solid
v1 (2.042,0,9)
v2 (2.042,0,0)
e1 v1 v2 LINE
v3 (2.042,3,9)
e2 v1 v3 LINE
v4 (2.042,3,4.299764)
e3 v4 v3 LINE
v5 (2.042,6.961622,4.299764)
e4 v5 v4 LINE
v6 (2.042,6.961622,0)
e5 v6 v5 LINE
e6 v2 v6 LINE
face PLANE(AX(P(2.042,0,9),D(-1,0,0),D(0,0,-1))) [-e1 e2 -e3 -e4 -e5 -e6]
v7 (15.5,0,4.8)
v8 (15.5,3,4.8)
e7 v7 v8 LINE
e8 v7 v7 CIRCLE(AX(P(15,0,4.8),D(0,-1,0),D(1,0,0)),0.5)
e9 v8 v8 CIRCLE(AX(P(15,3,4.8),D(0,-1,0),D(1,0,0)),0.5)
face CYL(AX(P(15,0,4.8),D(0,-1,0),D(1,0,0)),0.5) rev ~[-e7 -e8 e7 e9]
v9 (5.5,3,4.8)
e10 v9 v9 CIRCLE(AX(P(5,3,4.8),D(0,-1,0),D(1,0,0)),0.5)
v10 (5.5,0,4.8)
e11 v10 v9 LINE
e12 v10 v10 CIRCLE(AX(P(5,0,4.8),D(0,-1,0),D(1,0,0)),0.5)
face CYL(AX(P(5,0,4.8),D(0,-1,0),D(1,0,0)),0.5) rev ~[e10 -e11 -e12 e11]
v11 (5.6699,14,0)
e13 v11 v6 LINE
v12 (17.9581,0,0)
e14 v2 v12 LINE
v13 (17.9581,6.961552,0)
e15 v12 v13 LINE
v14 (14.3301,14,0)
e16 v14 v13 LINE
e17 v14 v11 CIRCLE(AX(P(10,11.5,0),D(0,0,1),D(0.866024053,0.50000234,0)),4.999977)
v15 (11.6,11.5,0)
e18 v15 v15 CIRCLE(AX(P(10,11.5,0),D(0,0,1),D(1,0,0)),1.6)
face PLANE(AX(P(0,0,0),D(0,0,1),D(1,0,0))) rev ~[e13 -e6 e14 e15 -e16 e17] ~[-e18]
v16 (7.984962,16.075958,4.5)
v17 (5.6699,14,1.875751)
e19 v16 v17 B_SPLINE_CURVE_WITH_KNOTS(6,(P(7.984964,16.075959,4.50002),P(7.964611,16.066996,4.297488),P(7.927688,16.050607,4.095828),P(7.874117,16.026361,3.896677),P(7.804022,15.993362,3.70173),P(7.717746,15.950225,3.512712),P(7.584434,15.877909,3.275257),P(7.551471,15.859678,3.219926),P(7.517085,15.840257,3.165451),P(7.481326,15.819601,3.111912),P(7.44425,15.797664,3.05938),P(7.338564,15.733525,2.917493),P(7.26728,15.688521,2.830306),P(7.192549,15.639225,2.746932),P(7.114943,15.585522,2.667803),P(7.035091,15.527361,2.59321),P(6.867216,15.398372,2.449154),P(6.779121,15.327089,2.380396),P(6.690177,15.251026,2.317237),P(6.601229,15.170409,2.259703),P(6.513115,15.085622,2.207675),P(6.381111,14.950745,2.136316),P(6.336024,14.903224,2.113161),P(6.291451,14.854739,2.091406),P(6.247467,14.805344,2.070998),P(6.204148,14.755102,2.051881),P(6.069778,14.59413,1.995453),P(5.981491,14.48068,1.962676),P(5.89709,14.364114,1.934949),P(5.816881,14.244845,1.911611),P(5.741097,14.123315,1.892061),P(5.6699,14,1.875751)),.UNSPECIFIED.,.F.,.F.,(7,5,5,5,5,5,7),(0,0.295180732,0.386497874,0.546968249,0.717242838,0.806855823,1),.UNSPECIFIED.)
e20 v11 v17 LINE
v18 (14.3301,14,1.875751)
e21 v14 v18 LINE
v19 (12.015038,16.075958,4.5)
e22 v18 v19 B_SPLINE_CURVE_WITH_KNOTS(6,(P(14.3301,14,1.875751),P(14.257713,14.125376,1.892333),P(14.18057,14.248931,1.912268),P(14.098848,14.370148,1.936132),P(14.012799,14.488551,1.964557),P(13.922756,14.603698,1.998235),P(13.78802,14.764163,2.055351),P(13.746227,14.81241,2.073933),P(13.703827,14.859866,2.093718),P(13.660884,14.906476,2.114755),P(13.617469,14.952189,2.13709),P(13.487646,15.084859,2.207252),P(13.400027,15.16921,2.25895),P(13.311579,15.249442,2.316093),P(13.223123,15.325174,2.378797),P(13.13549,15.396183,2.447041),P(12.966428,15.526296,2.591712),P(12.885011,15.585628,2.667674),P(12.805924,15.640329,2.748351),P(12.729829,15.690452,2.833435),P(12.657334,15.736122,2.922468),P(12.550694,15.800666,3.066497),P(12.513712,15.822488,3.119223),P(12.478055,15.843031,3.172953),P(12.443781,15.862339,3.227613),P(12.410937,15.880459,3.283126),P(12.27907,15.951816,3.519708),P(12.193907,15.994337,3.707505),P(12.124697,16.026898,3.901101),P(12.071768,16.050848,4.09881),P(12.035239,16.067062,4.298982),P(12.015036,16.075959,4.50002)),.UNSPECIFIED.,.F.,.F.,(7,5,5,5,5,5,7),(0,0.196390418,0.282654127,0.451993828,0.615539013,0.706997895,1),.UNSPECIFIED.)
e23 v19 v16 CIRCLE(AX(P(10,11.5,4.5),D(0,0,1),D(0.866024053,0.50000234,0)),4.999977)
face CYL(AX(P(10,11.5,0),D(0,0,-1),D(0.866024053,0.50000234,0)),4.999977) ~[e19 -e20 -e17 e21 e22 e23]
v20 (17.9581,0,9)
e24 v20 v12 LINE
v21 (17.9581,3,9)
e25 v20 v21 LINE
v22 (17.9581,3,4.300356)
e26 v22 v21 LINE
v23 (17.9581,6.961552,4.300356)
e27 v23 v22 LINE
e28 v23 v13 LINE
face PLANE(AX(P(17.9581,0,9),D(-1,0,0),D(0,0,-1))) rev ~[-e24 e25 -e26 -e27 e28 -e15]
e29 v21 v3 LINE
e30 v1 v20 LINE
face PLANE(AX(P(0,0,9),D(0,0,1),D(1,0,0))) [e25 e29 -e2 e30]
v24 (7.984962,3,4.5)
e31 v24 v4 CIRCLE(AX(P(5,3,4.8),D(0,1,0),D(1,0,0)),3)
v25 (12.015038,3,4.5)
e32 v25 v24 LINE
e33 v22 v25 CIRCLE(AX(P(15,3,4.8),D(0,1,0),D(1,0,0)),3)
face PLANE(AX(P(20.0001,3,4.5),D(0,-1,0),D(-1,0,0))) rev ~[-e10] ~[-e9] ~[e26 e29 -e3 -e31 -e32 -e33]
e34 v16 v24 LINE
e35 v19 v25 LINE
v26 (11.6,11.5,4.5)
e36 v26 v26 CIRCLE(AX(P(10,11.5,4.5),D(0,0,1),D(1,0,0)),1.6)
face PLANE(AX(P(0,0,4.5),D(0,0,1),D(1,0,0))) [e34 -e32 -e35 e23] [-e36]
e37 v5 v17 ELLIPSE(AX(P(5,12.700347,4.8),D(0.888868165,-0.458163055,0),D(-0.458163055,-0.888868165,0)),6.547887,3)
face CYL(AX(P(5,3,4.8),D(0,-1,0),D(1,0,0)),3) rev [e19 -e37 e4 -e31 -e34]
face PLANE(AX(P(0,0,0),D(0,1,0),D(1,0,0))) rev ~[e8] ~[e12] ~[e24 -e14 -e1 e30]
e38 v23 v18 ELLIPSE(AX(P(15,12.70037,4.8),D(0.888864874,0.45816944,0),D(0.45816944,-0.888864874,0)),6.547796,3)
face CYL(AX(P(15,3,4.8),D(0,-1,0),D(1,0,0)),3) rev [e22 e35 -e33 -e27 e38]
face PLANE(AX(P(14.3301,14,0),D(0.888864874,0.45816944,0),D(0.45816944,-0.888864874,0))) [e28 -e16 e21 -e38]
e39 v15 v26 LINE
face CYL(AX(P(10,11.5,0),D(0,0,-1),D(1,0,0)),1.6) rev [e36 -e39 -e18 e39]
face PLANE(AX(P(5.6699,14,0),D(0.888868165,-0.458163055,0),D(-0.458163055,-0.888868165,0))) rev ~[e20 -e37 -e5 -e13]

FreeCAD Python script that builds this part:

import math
import FreeCAD as App
import Part
import Sketcher
Q = App.Units.Quantity


def add_polygon(sketch, points):
    """Adds a closed chain of lines whose ends are joined by coincident constraints."""
    first, n = sketch.GeometryCount, len(points)
    for a, b in zip(points, points[1:] + points[:1]):
        sketch.addGeometry(Part.LineSegment(App.Vector(*a, 0), App.Vector(*b, 0)), False)
    for i in range(n):
        sketch.addConstraint(Sketcher.Constraint("Coincident", first + i, 2, first + (i + 1) % n, 1))

doc = App.newDocument("Part")
params = doc.addObject("Spreadsheet::Sheet", "Params")
for row, (alias, value) in enumerate([
    ("sketch1_radius", "5 mm"),
    ("sketch1_height", "3 mm"),
    ("sketch1_diameter", "3.2 mm"),
    ("pad1_length", "4.5 mm"),
    ("sketch2_width", "20 mm"),
    ("sketch2_height", "3 mm"),
    ("pad2_length", "4.5 mm"),
    ("sketch3_diameter", "1 mm"),
    ("sketch4_diameter", "6 mm"),
    ("sketch4_diameter2", "1 mm"),
    ("pocket2_length", "13.076 mm"),
    ("sketch5_height", "9 mm"),
    ("pocket3_length", "6.9616 mm"),
    ("sketch6_height", "9 mm"),
    ("pocket4_length", "6.9616 mm"),
], start=1):
    params.set(f"A{row}", alias)
    params.set(f"B{row}", "=" + value)
    params.setAlias(f"B{row}", alias)

body = doc.addObject("PartDesign::Body", "Body")

# Sketch on XY plane
sketch1 = body.newObject("Sketcher::SketchObject", "Sketch")
sketch1.AttachmentSupport = (doc.getObject("XY_Plane"), [""])
sketch1.MapMode = "FlatFace"
sketch1.addGeometry(Part.LineSegment(App.Vector(0, 3, 0), App.Vector(0, 0, 0)), False)
sketch1.addGeometry(Part.LineSegment(App.Vector(0, 0, 0), App.Vector(20.0001, 0, 0)), False)
sketch1.addGeometry(Part.LineSegment(App.Vector(20.0001, 0, 0), App.Vector(20.0001, 3, 0)), False)
sketch1.addGeometry(Part.LineSegment(App.Vector(20.0001, 3, 0), App.Vector(14.3301, 14, 0)), False)
sketch1.addGeometry(Part.ArcOfCircle(Part.Circle(App.Vector(10, 11.5, 0), App.Vector(0, 0, 1), 4.999977), math.radians(30.000155), math.radians(149.999845)), False)
sketch1.addGeometry(Part.LineSegment(App.Vector(5.6699, 14, 0), App.Vector(0, 3, 0)), False)
sketch1.addGeometry(Part.Circle(App.Vector(10, 11.5, 0), App.Vector(0, 0, 1), 1.6), False)
sketch1.addConstraint(Sketcher.Constraint("Coincident", 0, 2, 1, 1))
sketch1.addConstraint(Sketcher.Constraint("Coincident", 1, 2, 2, 1))
sketch1.addConstraint(Sketcher.Constraint("Coincident", 2, 2, 3, 1))
sketch1.addConstraint(Sketcher.Constraint("Coincident", 3, 2, 4, 1))
sketch1.addConstraint(Sketcher.Constraint("Coincident", 4, 2, 5, 1))
sketch1.addConstraint(Sketcher.Constraint("Coincident", 5, 2, 0, 1))
sketch1.addConstraint(Sketcher.Constraint("Vertical", 0))
sketch1.addConstraint(Sketcher.Constraint("Horizontal", 1))
sketch1.addConstraint(Sketcher.Constraint("Vertical", 2))
sketch1.addConstraint(Sketcher.Constraint("Coincident", 0, 2, -1, 1))
sketch1.addConstraint(Sketcher.Constraint("Coincident", 6, 3, 4, 3))
sketch1.addConstraint(Sketcher.Constraint("Horizontal", 3, 2, 4, 2))
sketch1.addConstraint(Sketcher.Constraint("Horizontal", 2, 2, 5, 2))
sketch1.addConstraint(Sketcher.Constraint("Equal", 3, 5))
sketch1.addConstraint(Sketcher.Constraint("Radius", 4, Q("5 mm")))
sketch1.addConstraint(Sketcher.Constraint("DistanceY", 0, 2, 0, 1, Q("3 mm")))
sketch1.addConstraint(Sketcher.Constraint("DistanceX", -1, 1, 4, 3, Q("10 mm")))
sketch1.addConstraint(Sketcher.Constraint("DistanceY", -1, 1, 3, 2, Q("14 mm")))
sketch1.addConstraint(Sketcher.Constraint("Diameter", 6, Q("3.2 mm")))
sketch1.addConstraint(Sketcher.Constraint("DistanceY", -1, 1, 4, 3, Q("11.5 mm")))
sketch1.setExpression("Constraints[14]", "Params.sketch1_radius")
sketch1.setExpression("Constraints[15]", "Params.sketch1_height")
sketch1.setExpression("Constraints[18]", "Params.sketch1_diameter")
pad1 = body.newObject("PartDesign::Pad", "Pad")
pad1.Profile = sketch1
pad1.setExpression("Length", "Params.pad1_length")

# Sketch on XY plane
sketch2 = body.newObject("Sketcher::SketchObject", "Sketch001")
sketch2.AttachmentSupport = (doc.getObject("XY_Plane"), [""])
sketch2.MapMode = "FlatFace"
sketch2.AttachmentOffset = App.Placement(App.Vector(0, 0, 4.5), App.Rotation())
add_polygon(sketch2, [(20.0001, 3), (0, 3), (0, 0), (20.0001, 0)])  # lines 0-3
sketch2.addConstraint(Sketcher.Constraint("Horizontal", 0))
sketch2.addConstraint(Sketcher.Constraint("Vertical", 1))
sketch2.addConstraint(Sketcher.Constraint("Horizontal", 2))
sketch2.addConstraint(Sketcher.Constraint("Vertical", 3))
sketch2.addConstraint(Sketcher.Constraint("Coincident", 1, 2, -1, 1))
sketch2.addConstraint(Sketcher.Constraint("DistanceX", 0, 2, 0, 1, Q("20 mm")))
sketch2.addConstraint(Sketcher.Constraint("DistanceY", 1, 2, 1, 1, Q("3 mm")))
sketch2.setExpression("Constraints[9]", "Params.sketch2_width")
sketch2.setExpression("Constraints[10]", "Params.sketch2_height")
pad2 = body.newObject("PartDesign::Pad", "Pad001")
pad2.Profile = sketch2
pad2.setExpression("Length", "Params.pad2_length")

# Sketch on XZ plane
sketch3 = body.newObject("Sketcher::SketchObject", "Sketch002")
sketch3.AttachmentSupport = (doc.getObject("XZ_Plane"), [""])
sketch3.MapMode = "FlatFace"
sketch3.addGeometry(Part.Circle(App.Vector(5, 4.8, 0), App.Vector(0, 0, 1), 0.5), False)
sketch3.addGeometry(Part.Circle(App.Vector(15, 4.8, 0), App.Vector(0, 0, 1), 0.5), False)
sketch3.addConstraint(Sketcher.Constraint("Equal", 0, 1))
sketch3.addConstraint(Sketcher.Constraint("Horizontal", 0, 3, 1, 3))
sketch3.addConstraint(Sketcher.Constraint("Diameter", 0, Q("1 mm")))
sketch3.addConstraint(Sketcher.Constraint("DistanceY", -1, 1, 0, 3, Q("4.8 mm")))
sketch3.addConstraint(Sketcher.Constraint("DistanceX", -1, 1, 0, 3, Q("5 mm")))
sketch3.addConstraint(Sketcher.Constraint("DistanceX", -1, 1, 1, 3, Q("15 mm")))
sketch3.setExpression("Constraints[2]", "Params.sketch3_diameter")
pocket1 = body.newObject("PartDesign::Pocket", "Pocket")
pocket1.Profile = sketch3
pocket1.Type = "ThroughAll"

# Sketch on XZ plane
sketch4 = body.newObject("Sketcher::SketchObject", "Sketch003")
sketch4.AttachmentSupport = (doc.getObject("XZ_Plane"), [""])
sketch4.MapMode = "FlatFace"
sketch4.AttachmentOffset = App.Placement(App.Vector(0, 0, -3), App.Rotation())
sketch4.addGeometry(Part.Circle(App.Vector(5, 4.8, 0), App.Vector(0, 0, 1), 3), False)
sketch4.addGeometry(Part.Circle(App.Vector(5, 4.8, 0), App.Vector(0, 0, 1), 0.5), False)
sketch4.addGeometry(Part.Circle(App.Vector(15, 4.8, 0), App.Vector(0, 0, 1), 3), False)
sketch4.addGeometry(Part.Circle(App.Vector(15, 4.8, 0), App.Vector(0, 0, 1), 0.5), False)
sketch4.addConstraint(Sketcher.Constraint("Coincident", 1, 3, 0, 3))
sketch4.addConstraint(Sketcher.Constraint("Coincident", 3, 3, 2, 3))
sketch4.addConstraint(Sketcher.Constraint("Equal", 0, 2))
sketch4.addConstraint(Sketcher.Constraint("Equal", 1, 3))
sketch4.addConstraint(Sketcher.Constraint("Horizontal", 1, 3, 2, 3))
sketch4.addConstraint(Sketcher.Constraint("Diameter", 0, Q("6 mm")))
sketch4.addConstraint(Sketcher.Constraint("Diameter", 1, Q("1 mm")))
sketch4.addConstraint(Sketcher.Constraint("DistanceY", -1, 1, 0, 3, Q("4.8 mm")))
sketch4.addConstraint(Sketcher.Constraint("DistanceX", -1, 1, 0, 3, Q("5 mm")))
sketch4.addConstraint(Sketcher.Constraint("DistanceX", -1, 1, 2, 3, Q("15 mm")))
sketch4.setExpression("Constraints[5]", "Params.sketch4_diameter")
sketch4.setExpression("Constraints[6]", "Params.sketch4_diameter2")
pocket2 = body.newObject("PartDesign::Pocket", "Pocket001")
pocket2.Profile = sketch4
pocket2.setExpression("Length", "Params.pocket2_length")

# Sketch on XZ plane
sketch5 = body.newObject("Sketcher::SketchObject", "Sketch004")
sketch5.AttachmentSupport = (doc.getObject("XZ_Plane"), [""])
sketch5.MapMode = "FlatFace"
add_polygon(sketch5, [(0, 9), (0, 0), (2.042, 0), (2.042, 9)])  # lines 0-3
sketch5.addConstraint(Sketcher.Constraint("Vertical", 0))
sketch5.addConstraint(Sketcher.Constraint("Horizontal", 1))
sketch5.addConstraint(Sketcher.Constraint("Vertical", 2))
sketch5.addConstraint(Sketcher.Constraint("Horizontal", 3))
sketch5.addConstraint(Sketcher.Constraint("Coincident", 0, 2, -1, 1))
sketch5.addConstraint(Sketcher.Constraint("DistanceY", 0, 2, 0, 1, Q("9 mm")))
sketch5.addConstraint(Sketcher.Constraint("DistanceX", 1, 1, 1, 2, Q("2.042 mm")))
sketch5.setExpression("Constraints[9]", "Params.sketch5_height")
pocket3 = body.newObject("PartDesign::Pocket", "Pocket002")
pocket3.Profile = sketch5
pocket3.setExpression("Length", "Params.pocket3_length")

# Sketch on XZ plane
sketch6 = body.newObject("Sketcher::SketchObject", "Sketch005")
sketch6.AttachmentSupport = (doc.getObject("XZ_Plane"), [""])
sketch6.MapMode = "FlatFace"
add_polygon(sketch6, [(20.0001, 0), (20.0001, 9), (17.9581, 9), (17.9581, 0)])  # lines 0-3
sketch6.addConstraint(Sketcher.Constraint("Vertical", 0))
sketch6.addConstraint(Sketcher.Constraint("Horizontal", 1))
sketch6.addConstraint(Sketcher.Constraint("Vertical", 2))
sketch6.addConstraint(Sketcher.Constraint("Horizontal", 3))
sketch6.addConstraint(Sketcher.Constraint("PointOnObject", 2, 2, -1))
sketch6.addConstraint(Sketcher.Constraint("DistanceY", 0, 1, 0, 2, Q("9 mm")))
sketch6.addConstraint(Sketcher.Constraint("DistanceX", -1, 1, 0, 2, Q("20 mm")))
sketch6.addConstraint(Sketcher.Constraint("DistanceX", 1, 2, 1, 1, Q("2.042 mm")))
sketch6.setExpression("Constraints[9]", "Params.sketch6_height")
pocket4 = body.newObject("PartDesign::Pocket", "Pocket003")
pocket4.Profile = sketch6
pocket4.setExpression("Length", "Params.pocket4_length")

doc.recompute()
